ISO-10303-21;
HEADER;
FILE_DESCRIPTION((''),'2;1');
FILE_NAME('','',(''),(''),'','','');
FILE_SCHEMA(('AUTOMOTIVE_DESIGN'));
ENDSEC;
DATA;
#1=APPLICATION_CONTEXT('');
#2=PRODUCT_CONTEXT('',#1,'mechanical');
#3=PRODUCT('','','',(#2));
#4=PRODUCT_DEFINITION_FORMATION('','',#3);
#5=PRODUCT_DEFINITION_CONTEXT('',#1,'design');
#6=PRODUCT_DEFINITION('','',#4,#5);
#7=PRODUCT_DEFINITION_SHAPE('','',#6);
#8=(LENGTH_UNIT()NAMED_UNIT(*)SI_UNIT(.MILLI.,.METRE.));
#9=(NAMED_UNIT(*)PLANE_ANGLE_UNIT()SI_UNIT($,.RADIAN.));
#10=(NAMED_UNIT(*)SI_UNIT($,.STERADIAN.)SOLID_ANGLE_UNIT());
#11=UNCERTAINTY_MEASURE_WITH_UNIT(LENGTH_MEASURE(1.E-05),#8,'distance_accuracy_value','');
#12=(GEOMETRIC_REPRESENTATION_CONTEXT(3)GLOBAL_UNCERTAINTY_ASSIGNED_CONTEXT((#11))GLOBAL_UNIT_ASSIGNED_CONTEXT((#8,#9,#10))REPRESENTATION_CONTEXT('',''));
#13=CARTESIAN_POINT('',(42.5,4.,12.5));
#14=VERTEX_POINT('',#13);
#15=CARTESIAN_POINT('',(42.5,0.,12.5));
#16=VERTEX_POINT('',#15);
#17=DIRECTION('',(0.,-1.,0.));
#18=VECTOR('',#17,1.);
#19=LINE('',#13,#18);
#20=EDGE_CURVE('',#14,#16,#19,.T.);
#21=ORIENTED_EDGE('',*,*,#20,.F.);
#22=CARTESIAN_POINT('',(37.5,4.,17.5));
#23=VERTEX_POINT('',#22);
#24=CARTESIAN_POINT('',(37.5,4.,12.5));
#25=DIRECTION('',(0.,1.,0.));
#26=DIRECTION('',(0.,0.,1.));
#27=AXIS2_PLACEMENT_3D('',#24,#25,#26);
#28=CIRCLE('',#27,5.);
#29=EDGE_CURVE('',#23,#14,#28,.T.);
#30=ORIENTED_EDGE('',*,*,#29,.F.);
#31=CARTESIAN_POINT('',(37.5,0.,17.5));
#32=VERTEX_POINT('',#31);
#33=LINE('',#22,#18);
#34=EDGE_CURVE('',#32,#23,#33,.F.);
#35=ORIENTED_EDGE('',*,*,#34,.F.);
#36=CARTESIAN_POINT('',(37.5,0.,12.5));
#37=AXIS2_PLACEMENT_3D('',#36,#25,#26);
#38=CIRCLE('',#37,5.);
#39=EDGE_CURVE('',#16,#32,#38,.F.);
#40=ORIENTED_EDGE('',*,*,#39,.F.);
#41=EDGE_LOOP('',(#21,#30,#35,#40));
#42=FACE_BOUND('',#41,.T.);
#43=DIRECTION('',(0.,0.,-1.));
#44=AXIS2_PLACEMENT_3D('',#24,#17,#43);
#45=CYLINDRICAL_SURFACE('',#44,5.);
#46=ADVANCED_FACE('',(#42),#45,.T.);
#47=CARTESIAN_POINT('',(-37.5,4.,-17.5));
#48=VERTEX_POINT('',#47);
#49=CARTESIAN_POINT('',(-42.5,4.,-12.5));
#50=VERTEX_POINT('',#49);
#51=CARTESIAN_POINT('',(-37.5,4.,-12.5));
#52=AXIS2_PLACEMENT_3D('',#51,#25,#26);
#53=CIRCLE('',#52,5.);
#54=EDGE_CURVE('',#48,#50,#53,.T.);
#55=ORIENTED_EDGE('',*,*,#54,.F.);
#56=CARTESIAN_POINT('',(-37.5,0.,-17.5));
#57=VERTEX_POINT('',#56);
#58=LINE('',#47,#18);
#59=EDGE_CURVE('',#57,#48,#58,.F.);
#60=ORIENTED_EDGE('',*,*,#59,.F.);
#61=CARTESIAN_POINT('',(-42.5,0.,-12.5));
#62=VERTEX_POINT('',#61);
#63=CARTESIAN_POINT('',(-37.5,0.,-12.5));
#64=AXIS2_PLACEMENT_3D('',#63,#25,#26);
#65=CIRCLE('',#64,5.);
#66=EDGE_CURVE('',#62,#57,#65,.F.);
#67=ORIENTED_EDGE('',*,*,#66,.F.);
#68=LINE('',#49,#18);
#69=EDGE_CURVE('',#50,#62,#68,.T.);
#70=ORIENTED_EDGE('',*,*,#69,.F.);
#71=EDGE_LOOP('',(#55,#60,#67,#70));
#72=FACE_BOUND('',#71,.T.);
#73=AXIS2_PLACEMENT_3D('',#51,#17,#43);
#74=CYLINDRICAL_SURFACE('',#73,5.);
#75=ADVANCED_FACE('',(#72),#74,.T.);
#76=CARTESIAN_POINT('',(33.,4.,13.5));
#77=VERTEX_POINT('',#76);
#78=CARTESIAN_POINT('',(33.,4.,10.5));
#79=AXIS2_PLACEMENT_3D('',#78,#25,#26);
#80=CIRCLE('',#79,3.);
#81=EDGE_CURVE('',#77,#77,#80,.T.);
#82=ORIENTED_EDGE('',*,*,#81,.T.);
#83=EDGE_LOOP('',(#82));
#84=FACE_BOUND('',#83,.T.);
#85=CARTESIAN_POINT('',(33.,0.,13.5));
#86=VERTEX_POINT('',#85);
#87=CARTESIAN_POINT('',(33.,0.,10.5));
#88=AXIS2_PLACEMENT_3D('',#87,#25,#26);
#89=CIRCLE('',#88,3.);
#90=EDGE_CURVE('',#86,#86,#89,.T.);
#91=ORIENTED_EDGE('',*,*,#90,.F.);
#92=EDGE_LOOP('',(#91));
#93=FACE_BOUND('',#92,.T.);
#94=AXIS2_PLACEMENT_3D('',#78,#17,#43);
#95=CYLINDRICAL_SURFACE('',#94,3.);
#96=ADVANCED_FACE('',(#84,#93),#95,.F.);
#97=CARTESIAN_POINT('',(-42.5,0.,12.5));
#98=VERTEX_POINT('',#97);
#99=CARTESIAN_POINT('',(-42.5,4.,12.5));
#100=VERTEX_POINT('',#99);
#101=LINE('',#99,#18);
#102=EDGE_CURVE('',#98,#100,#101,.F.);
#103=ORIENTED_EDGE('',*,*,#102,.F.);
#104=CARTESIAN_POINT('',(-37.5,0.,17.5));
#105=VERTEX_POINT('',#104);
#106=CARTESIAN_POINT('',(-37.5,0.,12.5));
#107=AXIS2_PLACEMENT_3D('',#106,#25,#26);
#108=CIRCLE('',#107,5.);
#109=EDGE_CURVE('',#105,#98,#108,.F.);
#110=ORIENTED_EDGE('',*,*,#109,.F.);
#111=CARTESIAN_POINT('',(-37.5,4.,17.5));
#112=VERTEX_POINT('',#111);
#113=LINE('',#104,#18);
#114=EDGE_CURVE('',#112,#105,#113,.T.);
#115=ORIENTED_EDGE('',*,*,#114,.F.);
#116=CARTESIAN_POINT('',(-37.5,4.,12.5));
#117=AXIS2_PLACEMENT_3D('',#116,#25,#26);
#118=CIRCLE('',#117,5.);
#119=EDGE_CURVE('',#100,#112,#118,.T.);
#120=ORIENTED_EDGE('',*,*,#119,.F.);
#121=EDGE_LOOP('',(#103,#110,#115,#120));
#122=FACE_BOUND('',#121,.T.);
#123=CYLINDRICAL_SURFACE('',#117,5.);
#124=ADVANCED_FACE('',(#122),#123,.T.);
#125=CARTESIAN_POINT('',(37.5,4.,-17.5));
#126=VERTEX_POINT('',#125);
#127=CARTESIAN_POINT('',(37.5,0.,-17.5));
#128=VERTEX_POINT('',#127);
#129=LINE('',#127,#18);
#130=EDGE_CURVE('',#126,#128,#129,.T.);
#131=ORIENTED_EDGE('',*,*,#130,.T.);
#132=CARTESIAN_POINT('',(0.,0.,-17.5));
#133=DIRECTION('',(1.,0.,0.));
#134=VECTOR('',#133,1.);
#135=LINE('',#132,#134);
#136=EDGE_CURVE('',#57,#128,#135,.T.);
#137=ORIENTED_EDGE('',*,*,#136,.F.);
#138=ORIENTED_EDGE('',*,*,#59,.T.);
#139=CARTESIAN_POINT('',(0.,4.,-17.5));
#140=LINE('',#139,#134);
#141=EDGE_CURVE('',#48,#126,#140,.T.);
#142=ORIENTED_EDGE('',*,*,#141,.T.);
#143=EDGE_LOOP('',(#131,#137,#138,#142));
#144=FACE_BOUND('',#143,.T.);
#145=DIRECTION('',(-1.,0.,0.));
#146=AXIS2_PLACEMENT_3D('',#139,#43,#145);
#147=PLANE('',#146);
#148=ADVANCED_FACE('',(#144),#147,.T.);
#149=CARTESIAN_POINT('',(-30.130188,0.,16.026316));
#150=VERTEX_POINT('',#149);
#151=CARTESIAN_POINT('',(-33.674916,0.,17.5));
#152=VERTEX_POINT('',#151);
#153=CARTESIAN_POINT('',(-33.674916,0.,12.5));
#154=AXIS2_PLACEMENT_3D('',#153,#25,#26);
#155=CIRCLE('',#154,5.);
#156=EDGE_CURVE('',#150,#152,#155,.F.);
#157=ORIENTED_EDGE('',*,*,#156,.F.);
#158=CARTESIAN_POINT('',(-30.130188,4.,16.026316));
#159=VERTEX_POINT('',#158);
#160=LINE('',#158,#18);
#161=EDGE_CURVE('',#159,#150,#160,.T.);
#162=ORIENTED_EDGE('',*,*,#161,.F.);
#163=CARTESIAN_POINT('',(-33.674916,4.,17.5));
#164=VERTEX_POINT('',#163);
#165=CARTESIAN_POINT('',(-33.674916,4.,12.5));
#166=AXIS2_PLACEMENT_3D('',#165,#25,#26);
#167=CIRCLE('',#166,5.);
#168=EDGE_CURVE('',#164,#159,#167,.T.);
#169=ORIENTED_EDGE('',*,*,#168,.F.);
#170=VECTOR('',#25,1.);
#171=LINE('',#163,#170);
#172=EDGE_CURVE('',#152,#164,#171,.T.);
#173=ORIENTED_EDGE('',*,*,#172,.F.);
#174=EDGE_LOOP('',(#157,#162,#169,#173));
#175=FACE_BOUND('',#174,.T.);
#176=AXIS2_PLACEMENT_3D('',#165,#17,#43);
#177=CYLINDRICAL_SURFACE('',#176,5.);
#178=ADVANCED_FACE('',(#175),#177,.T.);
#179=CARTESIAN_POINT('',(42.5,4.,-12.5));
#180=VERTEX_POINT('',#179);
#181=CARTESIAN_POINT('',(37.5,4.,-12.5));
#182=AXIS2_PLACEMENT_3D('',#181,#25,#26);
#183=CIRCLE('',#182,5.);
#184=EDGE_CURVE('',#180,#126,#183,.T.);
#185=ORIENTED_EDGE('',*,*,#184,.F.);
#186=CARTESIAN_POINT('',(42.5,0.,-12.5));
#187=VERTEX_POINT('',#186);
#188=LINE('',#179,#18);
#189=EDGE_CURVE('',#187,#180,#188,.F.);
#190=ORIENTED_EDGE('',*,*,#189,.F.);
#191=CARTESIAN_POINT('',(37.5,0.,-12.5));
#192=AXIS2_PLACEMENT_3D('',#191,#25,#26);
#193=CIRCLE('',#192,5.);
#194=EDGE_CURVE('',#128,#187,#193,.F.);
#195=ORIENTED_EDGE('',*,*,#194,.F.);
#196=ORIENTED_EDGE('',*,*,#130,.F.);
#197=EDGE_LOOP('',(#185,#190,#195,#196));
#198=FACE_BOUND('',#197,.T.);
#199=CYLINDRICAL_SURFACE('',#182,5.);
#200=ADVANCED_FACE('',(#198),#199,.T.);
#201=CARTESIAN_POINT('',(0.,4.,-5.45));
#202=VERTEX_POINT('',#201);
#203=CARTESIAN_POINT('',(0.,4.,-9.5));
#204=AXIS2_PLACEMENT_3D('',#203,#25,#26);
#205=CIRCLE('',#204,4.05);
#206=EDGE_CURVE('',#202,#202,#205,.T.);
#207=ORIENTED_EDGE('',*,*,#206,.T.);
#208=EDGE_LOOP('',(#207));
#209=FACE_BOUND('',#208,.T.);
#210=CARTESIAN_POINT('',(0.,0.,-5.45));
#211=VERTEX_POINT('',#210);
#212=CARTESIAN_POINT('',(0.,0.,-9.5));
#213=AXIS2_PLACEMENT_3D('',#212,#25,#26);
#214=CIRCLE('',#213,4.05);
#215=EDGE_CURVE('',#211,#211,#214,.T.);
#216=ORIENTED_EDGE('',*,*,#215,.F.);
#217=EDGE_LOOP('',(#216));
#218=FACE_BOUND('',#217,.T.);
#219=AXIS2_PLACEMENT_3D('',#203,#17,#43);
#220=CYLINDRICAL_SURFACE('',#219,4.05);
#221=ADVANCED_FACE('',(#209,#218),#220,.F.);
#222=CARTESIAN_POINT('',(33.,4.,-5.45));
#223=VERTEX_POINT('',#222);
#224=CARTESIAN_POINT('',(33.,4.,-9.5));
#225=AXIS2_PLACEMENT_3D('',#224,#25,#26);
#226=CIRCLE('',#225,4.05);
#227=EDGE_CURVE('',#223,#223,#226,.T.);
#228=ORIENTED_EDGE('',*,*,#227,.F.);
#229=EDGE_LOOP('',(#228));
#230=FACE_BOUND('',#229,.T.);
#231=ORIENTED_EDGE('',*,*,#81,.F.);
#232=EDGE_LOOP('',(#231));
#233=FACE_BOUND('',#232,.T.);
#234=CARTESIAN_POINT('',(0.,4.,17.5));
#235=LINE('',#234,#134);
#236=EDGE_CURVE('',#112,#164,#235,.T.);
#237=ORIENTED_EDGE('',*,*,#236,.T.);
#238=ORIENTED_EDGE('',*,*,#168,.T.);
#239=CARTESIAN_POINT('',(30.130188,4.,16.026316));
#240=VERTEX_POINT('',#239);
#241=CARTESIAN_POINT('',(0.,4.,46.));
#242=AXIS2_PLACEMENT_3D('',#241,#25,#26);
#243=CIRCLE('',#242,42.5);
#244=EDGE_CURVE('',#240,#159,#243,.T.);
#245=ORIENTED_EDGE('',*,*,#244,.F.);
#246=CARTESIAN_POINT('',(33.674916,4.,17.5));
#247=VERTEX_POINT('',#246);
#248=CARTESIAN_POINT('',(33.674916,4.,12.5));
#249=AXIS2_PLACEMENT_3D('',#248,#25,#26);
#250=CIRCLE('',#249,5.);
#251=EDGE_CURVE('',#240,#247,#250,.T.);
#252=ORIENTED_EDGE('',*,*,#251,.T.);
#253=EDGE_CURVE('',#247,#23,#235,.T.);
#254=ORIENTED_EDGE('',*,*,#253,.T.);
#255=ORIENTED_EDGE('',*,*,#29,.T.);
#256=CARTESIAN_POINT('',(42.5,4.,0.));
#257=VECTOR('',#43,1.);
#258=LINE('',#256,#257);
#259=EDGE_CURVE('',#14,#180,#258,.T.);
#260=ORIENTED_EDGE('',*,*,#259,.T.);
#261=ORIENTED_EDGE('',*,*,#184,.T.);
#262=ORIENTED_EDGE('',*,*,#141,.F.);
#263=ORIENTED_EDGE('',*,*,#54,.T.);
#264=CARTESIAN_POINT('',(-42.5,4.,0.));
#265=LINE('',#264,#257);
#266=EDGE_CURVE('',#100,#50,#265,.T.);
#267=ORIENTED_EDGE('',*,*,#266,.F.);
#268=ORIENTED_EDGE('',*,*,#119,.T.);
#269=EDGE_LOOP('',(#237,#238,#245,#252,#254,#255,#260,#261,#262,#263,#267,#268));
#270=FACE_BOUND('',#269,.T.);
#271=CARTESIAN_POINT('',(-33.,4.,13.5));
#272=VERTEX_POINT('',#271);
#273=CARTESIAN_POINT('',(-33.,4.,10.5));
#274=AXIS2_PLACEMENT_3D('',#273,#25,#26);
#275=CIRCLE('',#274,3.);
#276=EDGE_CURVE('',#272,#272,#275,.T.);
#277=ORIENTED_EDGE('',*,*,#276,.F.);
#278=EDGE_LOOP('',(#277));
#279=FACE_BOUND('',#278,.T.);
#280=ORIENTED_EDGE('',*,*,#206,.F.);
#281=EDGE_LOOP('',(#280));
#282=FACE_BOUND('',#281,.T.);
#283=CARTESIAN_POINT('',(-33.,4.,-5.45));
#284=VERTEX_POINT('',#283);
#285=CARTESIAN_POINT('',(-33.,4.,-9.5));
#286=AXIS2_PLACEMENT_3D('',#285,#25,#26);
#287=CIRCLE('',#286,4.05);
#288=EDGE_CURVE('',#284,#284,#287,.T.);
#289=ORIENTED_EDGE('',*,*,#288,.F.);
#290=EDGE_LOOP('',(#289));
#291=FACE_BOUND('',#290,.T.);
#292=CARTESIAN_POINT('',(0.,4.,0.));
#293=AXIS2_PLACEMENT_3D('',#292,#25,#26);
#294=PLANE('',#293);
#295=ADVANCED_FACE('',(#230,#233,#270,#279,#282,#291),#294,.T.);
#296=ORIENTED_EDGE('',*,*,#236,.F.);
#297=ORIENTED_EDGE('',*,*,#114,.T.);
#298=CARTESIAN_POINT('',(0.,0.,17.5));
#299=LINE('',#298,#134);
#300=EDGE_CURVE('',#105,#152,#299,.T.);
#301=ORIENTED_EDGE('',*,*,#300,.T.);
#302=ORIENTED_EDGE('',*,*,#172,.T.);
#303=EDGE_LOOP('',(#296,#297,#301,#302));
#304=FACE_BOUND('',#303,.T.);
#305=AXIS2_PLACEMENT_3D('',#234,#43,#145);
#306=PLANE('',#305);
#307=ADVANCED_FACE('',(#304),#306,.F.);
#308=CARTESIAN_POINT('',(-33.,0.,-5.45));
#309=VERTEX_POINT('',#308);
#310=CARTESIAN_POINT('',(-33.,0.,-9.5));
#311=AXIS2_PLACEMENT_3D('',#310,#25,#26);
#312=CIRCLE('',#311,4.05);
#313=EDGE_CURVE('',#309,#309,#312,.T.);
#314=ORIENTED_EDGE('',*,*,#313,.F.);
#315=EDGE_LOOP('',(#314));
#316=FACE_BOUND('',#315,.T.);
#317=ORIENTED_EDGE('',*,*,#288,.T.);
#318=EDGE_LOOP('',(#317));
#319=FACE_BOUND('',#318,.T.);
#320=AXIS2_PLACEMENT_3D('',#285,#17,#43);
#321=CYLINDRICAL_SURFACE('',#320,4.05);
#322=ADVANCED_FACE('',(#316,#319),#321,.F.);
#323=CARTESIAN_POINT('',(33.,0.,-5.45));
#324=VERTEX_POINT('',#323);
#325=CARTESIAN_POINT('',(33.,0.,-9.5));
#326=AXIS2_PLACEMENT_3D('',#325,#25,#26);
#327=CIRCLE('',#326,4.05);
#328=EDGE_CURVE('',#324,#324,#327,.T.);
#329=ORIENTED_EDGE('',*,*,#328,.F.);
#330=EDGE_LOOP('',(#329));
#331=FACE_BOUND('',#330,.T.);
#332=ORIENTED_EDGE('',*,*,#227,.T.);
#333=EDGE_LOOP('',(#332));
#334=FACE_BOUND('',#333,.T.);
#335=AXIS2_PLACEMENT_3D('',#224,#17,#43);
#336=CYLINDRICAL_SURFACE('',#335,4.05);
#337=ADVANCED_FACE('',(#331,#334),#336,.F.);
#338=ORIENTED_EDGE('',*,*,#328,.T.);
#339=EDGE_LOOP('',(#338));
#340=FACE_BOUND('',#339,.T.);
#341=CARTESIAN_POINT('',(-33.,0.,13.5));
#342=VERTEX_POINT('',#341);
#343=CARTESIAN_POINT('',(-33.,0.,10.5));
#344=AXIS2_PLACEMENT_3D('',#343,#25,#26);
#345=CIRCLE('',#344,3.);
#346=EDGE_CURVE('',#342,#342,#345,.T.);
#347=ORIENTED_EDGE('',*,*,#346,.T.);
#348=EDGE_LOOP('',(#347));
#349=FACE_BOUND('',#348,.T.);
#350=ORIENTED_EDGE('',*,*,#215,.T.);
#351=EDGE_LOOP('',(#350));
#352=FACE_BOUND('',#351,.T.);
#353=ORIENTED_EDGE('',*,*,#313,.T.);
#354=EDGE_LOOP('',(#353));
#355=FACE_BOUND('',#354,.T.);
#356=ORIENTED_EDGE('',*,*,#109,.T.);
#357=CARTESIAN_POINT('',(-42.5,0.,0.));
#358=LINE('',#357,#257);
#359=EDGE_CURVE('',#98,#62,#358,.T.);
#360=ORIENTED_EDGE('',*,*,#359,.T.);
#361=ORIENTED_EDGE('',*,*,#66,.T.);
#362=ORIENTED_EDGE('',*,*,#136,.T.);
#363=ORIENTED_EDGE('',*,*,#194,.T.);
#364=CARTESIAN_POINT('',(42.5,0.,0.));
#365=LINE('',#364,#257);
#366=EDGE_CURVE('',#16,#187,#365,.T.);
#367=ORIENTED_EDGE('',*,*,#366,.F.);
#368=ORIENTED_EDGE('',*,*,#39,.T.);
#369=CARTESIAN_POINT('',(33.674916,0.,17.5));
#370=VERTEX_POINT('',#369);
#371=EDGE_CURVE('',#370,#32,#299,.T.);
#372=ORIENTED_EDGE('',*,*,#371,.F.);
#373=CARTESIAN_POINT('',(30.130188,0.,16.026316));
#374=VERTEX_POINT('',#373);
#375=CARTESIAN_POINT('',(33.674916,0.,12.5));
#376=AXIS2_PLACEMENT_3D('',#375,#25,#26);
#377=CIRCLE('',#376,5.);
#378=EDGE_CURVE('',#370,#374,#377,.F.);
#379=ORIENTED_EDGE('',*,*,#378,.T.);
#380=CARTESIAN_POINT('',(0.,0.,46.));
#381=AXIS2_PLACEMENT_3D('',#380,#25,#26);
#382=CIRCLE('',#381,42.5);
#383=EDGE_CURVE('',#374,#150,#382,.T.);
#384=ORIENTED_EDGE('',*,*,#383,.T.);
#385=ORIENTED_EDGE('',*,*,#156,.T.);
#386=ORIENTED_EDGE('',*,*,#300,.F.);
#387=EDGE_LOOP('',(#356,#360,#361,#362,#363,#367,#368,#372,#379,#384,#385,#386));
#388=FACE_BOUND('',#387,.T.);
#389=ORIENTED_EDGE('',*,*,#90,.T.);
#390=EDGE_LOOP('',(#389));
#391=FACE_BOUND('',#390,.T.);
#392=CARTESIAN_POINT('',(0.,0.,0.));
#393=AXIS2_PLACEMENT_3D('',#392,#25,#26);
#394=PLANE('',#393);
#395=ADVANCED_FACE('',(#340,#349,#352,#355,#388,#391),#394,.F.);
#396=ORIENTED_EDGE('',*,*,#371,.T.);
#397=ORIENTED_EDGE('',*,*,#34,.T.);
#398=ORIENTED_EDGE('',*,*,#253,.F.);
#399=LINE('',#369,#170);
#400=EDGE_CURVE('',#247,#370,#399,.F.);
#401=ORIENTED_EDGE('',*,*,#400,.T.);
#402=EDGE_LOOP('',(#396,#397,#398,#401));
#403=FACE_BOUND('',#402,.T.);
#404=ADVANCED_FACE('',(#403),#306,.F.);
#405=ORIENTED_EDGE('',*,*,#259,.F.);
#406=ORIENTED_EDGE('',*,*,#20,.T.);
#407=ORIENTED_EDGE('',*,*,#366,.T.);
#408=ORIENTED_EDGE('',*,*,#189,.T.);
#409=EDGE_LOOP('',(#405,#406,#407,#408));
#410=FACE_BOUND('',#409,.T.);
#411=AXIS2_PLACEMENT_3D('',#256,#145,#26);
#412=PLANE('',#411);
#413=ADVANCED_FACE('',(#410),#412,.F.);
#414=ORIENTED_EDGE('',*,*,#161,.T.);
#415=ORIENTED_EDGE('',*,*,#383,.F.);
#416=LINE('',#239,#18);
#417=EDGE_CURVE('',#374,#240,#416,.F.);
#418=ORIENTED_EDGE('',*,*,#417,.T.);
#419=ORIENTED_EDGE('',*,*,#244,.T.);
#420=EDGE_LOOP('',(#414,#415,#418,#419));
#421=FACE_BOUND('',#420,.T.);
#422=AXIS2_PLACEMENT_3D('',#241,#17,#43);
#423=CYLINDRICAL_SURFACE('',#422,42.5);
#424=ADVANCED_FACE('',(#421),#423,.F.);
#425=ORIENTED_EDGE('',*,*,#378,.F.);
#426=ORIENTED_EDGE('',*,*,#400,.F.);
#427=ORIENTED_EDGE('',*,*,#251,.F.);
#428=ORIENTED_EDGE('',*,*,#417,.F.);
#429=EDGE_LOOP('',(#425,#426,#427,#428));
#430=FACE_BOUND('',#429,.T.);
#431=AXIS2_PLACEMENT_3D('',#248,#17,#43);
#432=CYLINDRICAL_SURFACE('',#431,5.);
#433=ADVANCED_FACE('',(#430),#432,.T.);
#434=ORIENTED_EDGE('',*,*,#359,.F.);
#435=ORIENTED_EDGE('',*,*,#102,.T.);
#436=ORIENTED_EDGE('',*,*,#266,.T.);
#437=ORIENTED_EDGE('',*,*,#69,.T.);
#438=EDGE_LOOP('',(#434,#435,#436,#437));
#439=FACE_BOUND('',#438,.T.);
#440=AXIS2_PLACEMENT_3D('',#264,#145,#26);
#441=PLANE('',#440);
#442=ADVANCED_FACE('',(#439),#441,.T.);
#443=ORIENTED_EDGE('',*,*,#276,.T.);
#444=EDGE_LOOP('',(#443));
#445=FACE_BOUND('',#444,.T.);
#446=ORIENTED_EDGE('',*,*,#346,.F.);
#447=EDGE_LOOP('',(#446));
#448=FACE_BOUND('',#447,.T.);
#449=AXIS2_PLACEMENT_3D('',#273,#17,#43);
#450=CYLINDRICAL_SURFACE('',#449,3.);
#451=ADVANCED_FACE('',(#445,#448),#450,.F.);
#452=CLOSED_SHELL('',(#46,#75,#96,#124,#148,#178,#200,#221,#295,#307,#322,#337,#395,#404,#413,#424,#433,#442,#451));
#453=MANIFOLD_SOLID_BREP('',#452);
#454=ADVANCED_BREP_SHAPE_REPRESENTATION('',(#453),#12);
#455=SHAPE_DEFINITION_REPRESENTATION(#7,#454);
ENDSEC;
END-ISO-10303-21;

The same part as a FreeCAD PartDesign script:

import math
import FreeCAD as App
import Part
import Sketcher


def edges_at(feature, points):
    """Names of the edges that pass closest to the given points."""
    edges = feature.Shape.Edges
    near = lambda p: min(range(len(edges)), key=lambda i: edges[i].distToShape(Part.Vertex(*p))[0])
    return sorted({f"Edge{near(p) + 1}" for p in points})

doc = App.newDocument("Part")
body = doc.addObject("PartDesign::Body", "Body")

# Sketch on XZ plane
sketch1 = body.newObject("Sketcher::SketchObject", "Sketch")
sketch1.AttachmentSupport = (doc.getObject("XZ_Plane"), [""])
sketch1.MapMode = "FlatFace"
sketch1.addGeometry([
    Part.LineSegment(App.Vector(-42.5, -17.5, 0), App.Vector(-42.5, 17.5, 0)),  # 0
    Part.LineSegment(App.Vector(-42.5, 17.5, 0), App.Vector(-31.527766, 17.5, 0)),  # 1
    Part.ArcOfCircle(Part.Circle(App.Vector(0, 46, 0), App.Vector(0, 0, 1), 42.5), math.radians(-137.887519), math.radians(-42.112481)),  # 2
    Part.LineSegment(App.Vector(31.527766, 17.5, 0), App.Vector(42.5, 17.5, 0)),  # 3
    Part.LineSegment(App.Vector(42.5, 17.5, 0), App.Vector(42.5, -17.5, 0)),  # 4
    Part.LineSegment(App.Vector(42.5, -17.5, 0), App.Vector(-42.5, -17.5, 0)),  # 5
    Part.Circle(App.Vector(-33, 10.5, 0), App.Vector(0, 0, 1), 3),  # 6
    Part.Circle(App.Vector(33, 10.5, 0), App.Vector(0, 0, 1), 3),  # 7
    Part.Circle(App.Vector(-33, -9.5, 0), App.Vector(0, 0, 1), 4.05),  # 8
    Part.Circle(App.Vector(0, -9.5, 0), App.Vector(0, 0, 1), 4.05),  # 9
    Part.Circle(App.Vector(33, -9.5, 0), App.Vector(0, 0, 1), 4.05),  # 10
], False)
sketch1.addConstraint([
    Sketcher.Constraint("Coincident", 0, 2, 1, 1),
    Sketcher.Constraint("Coincident", 1, 2, 2, 1),
    Sketcher.Constraint("Coincident", 2, 2, 3, 1),
    Sketcher.Constraint("Coincident", 3, 2, 4, 1),
    Sketcher.Constraint("Coincident", 4, 2, 5, 1),
    Sketcher.Constraint("Coincident", 5, 2, 0, 1),
    Sketcher.Constraint("Vertical", 0),
    Sketcher.Constraint("Horizontal", 1),
    Sketcher.Constraint("Horizontal", 3),
    Sketcher.Constraint("Vertical", 4),
    Sketcher.Constraint("Horizontal", 5),
    Sketcher.Constraint("Equal", 6, 7),
    Sketcher.Constraint("Equal", 8, 9),
    Sketcher.Constraint("Equal", 9, 10),
    Sketcher.Constraint("Symmetric", 0, 2, 4, 2, -1, 1),
    Sketcher.Constraint("Symmetric", 6, 3, 7, 3, -2),
    Sketcher.Constraint("Symmetric", 8, 3, 10, 3, -2),
    Sketcher.Constraint("Symmetric", 1, 2, 2, 2, -2),
    Sketcher.Constraint("PointOnObject", 9, 3, -2),
    Sketcher.Constraint("Horizontal", 8, 3, 9, 3),
    Sketcher.Constraint("Vertical", 6, 3, 8, 3),
    Sketcher.Constraint("Diameter", 6, 6.0),
    Sketcher.Constraint("Diameter", 8, 8.1),
    Sketcher.Constraint("Radius", 2, 42.5),
    Sketcher.Constraint("DistanceX", 5, 2, 5, 1, 85.0),
    Sketcher.Constraint("DistanceY", 0, 1, 0, 2, 35.0),
    Sketcher.Constraint("DistanceY", -1, 1, 2, 3, 46.0),
    Sketcher.Constraint("DistanceX", 6, 3, -1, 1, 33.0),
    Sketcher.Constraint("DistanceY", 8, 3, 6, 3, 20.0),
    Sketcher.Constraint("DistanceY", 6, 3, 0, 2, 7.0),
])
pad1 = body.newObject("PartDesign::Pad", "Pad")
pad1.Profile = sketch1
pad1.Length = 4
pad1.Reversed = True
doc.recompute()

fillet = body.newObject("PartDesign::Fillet", "Fillet")
fillet.Base = (pad1, edges_at(pad1, [
    (-31.528, 2, 17.5),
    (-42.5, 2, 17.5),
    (-42.5, 2, -17.5),
    (42.5, 2, -17.5),
    (42.5, 2, 17.5),
    (31.528, 2, 17.5),
]))
fillet.Radius = 5

doc.recompute()
